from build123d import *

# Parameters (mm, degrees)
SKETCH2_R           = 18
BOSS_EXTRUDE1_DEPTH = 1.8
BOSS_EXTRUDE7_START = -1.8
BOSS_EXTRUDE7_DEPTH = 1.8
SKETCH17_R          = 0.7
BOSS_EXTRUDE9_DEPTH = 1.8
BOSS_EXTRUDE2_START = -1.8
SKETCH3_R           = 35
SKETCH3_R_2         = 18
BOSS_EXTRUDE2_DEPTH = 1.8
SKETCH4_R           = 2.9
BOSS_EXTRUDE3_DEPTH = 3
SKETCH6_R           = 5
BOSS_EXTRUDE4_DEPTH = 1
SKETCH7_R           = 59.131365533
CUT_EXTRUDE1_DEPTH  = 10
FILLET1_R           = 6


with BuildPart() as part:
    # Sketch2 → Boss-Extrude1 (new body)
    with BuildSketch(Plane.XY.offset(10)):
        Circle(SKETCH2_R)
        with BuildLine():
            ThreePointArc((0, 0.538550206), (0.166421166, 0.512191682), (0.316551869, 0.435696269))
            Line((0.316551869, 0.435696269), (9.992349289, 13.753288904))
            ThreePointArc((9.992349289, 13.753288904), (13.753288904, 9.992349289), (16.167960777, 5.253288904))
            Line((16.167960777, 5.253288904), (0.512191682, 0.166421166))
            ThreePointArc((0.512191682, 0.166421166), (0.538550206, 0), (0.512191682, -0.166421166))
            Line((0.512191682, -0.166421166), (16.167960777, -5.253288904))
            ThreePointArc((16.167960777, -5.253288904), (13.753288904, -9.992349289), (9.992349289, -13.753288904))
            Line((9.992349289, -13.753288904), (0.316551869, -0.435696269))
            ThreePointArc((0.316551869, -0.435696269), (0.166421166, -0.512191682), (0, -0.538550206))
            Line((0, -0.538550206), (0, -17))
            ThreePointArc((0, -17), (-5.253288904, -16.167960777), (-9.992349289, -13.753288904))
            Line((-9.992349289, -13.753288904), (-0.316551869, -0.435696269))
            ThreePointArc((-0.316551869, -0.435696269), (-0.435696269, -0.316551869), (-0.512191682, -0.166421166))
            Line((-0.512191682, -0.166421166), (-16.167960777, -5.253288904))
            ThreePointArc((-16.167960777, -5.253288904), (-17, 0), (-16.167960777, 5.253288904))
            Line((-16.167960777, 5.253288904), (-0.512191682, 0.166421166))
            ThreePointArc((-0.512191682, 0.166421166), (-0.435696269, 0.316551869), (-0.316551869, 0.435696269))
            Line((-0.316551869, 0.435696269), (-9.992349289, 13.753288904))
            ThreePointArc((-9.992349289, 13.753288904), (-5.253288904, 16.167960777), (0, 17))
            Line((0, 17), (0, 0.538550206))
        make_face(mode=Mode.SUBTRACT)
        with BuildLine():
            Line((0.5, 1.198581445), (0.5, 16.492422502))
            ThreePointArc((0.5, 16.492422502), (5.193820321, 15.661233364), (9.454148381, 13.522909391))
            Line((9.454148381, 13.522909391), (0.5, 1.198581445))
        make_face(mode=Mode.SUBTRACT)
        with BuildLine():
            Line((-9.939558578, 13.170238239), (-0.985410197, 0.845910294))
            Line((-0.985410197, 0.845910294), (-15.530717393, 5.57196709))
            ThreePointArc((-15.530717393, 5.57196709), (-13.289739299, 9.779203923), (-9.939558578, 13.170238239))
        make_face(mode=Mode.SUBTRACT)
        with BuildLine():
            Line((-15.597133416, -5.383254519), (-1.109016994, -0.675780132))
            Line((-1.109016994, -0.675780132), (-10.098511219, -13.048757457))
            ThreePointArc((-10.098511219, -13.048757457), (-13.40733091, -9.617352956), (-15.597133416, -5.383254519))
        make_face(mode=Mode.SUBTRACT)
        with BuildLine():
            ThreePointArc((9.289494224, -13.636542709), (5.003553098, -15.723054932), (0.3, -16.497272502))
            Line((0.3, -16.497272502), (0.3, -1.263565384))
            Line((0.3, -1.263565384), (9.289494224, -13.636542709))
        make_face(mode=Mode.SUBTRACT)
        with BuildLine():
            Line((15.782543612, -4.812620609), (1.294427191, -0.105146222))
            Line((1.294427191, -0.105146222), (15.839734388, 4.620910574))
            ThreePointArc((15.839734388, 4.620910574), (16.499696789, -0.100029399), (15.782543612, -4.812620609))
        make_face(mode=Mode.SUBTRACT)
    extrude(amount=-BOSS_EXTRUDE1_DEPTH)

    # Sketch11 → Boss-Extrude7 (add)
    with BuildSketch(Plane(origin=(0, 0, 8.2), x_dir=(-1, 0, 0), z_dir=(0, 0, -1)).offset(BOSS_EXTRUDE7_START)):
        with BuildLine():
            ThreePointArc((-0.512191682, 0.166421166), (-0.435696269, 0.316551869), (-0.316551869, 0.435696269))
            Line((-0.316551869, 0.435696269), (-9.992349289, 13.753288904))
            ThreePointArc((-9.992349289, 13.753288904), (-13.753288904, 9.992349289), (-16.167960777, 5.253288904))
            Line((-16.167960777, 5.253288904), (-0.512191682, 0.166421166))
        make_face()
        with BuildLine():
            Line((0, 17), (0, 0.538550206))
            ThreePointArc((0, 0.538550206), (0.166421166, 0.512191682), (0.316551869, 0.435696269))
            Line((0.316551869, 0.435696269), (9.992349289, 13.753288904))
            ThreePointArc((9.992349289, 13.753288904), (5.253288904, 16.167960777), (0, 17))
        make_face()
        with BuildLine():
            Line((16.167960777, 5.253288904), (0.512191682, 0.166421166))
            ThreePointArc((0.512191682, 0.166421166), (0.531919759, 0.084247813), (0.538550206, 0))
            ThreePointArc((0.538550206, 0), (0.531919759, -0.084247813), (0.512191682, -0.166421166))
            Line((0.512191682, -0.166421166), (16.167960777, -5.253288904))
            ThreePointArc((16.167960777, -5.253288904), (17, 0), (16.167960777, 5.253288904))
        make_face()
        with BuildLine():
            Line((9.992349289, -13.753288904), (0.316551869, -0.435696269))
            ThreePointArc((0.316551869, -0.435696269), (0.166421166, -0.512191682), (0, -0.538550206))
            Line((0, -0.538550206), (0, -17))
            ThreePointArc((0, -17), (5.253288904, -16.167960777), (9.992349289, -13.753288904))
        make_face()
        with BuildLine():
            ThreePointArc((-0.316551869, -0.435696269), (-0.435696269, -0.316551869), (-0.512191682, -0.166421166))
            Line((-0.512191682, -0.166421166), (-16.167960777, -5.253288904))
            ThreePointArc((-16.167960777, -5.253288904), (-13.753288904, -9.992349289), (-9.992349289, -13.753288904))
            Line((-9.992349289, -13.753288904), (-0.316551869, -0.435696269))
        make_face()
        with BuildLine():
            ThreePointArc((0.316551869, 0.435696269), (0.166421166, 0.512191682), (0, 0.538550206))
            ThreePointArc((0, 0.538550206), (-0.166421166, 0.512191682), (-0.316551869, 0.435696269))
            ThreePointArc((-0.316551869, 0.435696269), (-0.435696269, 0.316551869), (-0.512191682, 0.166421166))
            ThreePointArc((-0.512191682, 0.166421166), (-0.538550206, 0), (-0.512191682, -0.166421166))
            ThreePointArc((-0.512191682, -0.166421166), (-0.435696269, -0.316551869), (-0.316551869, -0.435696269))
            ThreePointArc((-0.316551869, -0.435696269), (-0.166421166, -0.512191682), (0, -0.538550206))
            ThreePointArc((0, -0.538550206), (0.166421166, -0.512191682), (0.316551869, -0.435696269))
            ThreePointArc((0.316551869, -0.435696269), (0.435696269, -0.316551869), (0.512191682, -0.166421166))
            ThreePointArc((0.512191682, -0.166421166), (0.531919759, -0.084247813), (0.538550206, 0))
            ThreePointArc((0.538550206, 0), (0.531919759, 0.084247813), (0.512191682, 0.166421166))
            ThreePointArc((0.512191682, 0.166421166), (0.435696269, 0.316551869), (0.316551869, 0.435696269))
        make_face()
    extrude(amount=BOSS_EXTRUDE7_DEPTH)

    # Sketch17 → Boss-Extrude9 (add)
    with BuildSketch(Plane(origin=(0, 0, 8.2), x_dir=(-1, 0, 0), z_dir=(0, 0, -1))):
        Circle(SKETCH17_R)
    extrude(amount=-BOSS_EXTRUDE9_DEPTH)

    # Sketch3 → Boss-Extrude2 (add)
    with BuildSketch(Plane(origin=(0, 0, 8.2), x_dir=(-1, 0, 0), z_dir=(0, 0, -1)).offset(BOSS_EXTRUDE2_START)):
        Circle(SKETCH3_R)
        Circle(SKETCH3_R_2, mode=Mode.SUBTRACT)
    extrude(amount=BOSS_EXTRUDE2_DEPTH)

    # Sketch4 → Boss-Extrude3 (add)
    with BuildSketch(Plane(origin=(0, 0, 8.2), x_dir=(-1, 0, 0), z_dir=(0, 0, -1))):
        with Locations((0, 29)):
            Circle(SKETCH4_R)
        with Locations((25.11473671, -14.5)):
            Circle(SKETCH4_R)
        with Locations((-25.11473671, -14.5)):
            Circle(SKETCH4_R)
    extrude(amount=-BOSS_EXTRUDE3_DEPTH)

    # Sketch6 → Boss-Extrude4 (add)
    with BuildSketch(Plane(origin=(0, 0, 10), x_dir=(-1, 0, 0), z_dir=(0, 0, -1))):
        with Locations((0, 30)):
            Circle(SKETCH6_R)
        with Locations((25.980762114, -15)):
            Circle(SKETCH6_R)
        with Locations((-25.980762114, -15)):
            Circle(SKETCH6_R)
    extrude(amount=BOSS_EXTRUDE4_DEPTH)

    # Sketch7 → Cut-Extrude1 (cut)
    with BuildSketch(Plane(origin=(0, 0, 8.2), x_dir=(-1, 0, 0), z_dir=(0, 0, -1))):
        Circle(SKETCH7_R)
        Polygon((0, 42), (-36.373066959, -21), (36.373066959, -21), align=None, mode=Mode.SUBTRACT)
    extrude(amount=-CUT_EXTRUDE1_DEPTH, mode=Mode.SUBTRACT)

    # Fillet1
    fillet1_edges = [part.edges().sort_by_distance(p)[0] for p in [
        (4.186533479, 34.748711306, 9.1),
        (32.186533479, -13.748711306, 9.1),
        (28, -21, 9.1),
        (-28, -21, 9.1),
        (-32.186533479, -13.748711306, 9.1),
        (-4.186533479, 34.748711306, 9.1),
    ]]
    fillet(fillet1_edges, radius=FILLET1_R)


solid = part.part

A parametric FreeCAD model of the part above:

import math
import FreeCAD as App
import Part
import Sketcher
Q = App.Units.Quantity


def edges_at(feature, points):
    """Names of the edges that pass closest to the given points."""
    edges = feature.Shape.Edges
    near = lambda p: min(range(len(edges)), key=lambda i: edges[i].distToShape(Part.Vertex(*p))[0])
    return sorted({f"Edge{near(p) + 1}" for p in points})


def add_polygon(sketch, points):
    """Adds a closed chain of lines whose ends are joined by coincident constraints."""
    first, n = sketch.GeometryCount, len(points)
    for a, b in zip(points, points[1:] + points[:1]):
        sketch.addGeometry(Part.LineSegment(App.Vector(*a, 0), App.Vector(*b, 0)), False)
    for i in range(n):
        sketch.addConstraint(Sketcher.Constraint("Coincident", first + i, 2, first + (i + 1) % n, 1))

doc = App.newDocument("Part")
body = doc.addObject("PartDesign::Body", "Body")

# Sketch on XY plane
sketch1 = body.newObject("Sketcher::SketchObject", "Sketch")
sketch1.AttachmentSupport = (doc.getObject("XY_Plane"), [""])
sketch1.MapMode = "FlatFace"
sketch1.AttachmentOffset = App.Placement(App.Vector(0, 0, 10), App.Rotation())
sketch1.addGeometry([
    Part.Circle(App.Vector(0, 0, 0), App.Vector(0, 0, 1), 18),  # 0
    Part.ArcOfCircle(Part.Circle(App.Vector(0, 0, 0), App.Vector(0, 0, 1), 16.5), math.radians(-160.958201), math.radians(-127.736502)),  # 1
    Part.LineSegment(App.Vector(-15.597133, -5.383255, 0), App.Vector(-1.109017, -0.67578, 0)),  # 2
    Part.LineSegment(App.Vector(-1.109017, -0.67578, 0), App.Vector(-10.098511, -13.048757, 0)),  # 3
    Part.LineSegment(App.Vector(0.3, -1.263565, 0), App.Vector(9.289494, -13.636543, 0)),  # 4
    Part.ArcOfCircle(Part.Circle(App.Vector(0, 0, 0), App.Vector(0, 0, 1), 16.5), math.radians(-88.958201), math.radians(-55.736502)),  # 5
    Part.LineSegment(App.Vector(0.3, -16.497273, 0), App.Vector(0.3, -1.263565, 0)),  # 6
    Part.ArcOfCircle(Part.Circle(App.Vector(0, 0, 0), App.Vector(0, 0, 1), 16.5), math.radians(-16.958201), math.radians(16.263498)),  # 7
    Part.LineSegment(App.Vector(15.782544, -4.812621, 0), App.Vector(1.294427, -0.105146, 0)),  # 8
    Part.LineSegment(App.Vector(1.294427, -0.105146, 0), App.Vector(15.839734, 4.620911, 0)),  # 9
    Part.LineSegment(App.Vector(0, 17, 0), App.Vector(0, 0.53855, 0)),  # 10
    Part.ArcOfCircle(Part.Circle(App.Vector(0, 0, 0), App.Vector(0, 0, 1), 0.53855), math.radians(54.000001), math.radians(89.999999)),  # 11
    Part.LineSegment(App.Vector(0.316552, 0.435696, 0), App.Vector(9.992349, 13.753289, 0)),  # 12
    Part.ArcOfCircle(Part.Circle(App.Vector(0, 0, 0), App.Vector(0, 0, 1), 17), math.radians(18), math.radians(54)),  # 13
    Part.LineSegment(App.Vector(16.167961, 5.253289, 0), App.Vector(0.512192, 0.166421, 0)),  # 14
    Part.ArcOfCircle(Part.Circle(App.Vector(0, 0, 0), App.Vector(0, 0, 1), 0.53855), math.radians(-18.000001), math.radians(18.000001)),  # 15
    Part.LineSegment(App.Vector(0.512192, -0.166421, 0), App.Vector(16.167961, -5.253289, 0)),  # 16
    Part.ArcOfCircle(Part.Circle(App.Vector(0, 0, 0), App.Vector(0, 0, 1), 17), math.radians(-54), math.radians(-18)),  # 17
    Part.LineSegment(App.Vector(9.992349, -13.753289, 0), App.Vector(0.316552, -0.435696, 0)),  # 18
    Part.ArcOfCircle(Part.Circle(App.Vector(0, 0, 0), App.Vector(0, 0, 1), 0.53855), math.radians(-89.999999), math.radians(-54.000001)),  # 19
    Part.LineSegment(App.Vector(0, -0.53855, 0), App.Vector(0, -17, 0)),  # 20
    Part.ArcOfCircle(Part.Circle(App.Vector(0, 0, 0), App.Vector(0, 0, 1), 17), math.radians(-126), math.radians(-90)),  # 21
    Part.LineSegment(App.Vector(-9.992349, -13.753289, 0), App.Vector(-0.316552, -0.435696, 0)),  # 22
    Part.ArcOfCircle(Part.Circle(App.Vector(0, 0, 0), App.Vector(0, 0, 1), 0.53855), math.radians(-162), math.radians(-126)),  # 23
    Part.LineSegment(App.Vector(-0.512192, -0.166421, 0), App.Vector(-16.167961, -5.253289, 0)),  # 24
    Part.ArcOfCircle(Part.Circle(App.Vector(0, 0, 0), App.Vector(0, 0, 1), 17), math.radians(162), math.radians(198)),  # 25
    Part.LineSegment(App.Vector(-16.167961, 5.253289, 0), App.Vector(-0.512192, 0.166421, 0)),  # 26
    Part.ArcOfCircle(Part.Circle(App.Vector(0, 0, 0), App.Vector(0, 0, 1), 0.53855), math.radians(126), math.radians(162)),  # 27
    Part.LineSegment(App.Vector(-0.316552, 0.435696, 0), App.Vector(-9.992349, 13.753289, 0)),  # 28
    Part.ArcOfCircle(Part.Circle(App.Vector(0, 0, 0), App.Vector(0, 0, 1), 17), math.radians(90), math.radians(126)),  # 29
    Part.ArcOfCircle(Part.Circle(App.Vector(0, 0, 0), App.Vector(0, 0, 1), 16.5), math.radians(127.041799), math.radians(160.263498)),  # 30
    Part.LineSegment(App.Vector(-9.939559, 13.170238, 0), App.Vector(-0.98541, 0.84591, 0)),  # 31
    Part.LineSegment(App.Vector(-0.98541, 0.84591, 0), App.Vector(-15.530717, 5.571967, 0)),  # 32
    Part.LineSegment(App.Vector(9.454148, 13.522909, 0), App.Vector(0.5, 1.198581, 0)),  # 33
    Part.LineSegment(App.Vector(0.5, 1.198581, 0), App.Vector(0.5, 16.492423, 0)),  # 34
    Part.ArcOfCircle(Part.Circle(App.Vector(0, 0, 0), App.Vector(0, 0, 1), 16.5), math.radians(55.041799), math.radians(88.263498)),  # 35
], False)
sketch1.addConstraint([
    Sketcher.Constraint("Coincident", 1, 1, 2, 1),
    Sketcher.Constraint("Coincident", 2, 2, 3, 1),
    Sketcher.Constraint("Coincident", 3, 2, 1, 2),
    Sketcher.Constraint("Coincident", 4, 2, 5, 2),
    Sketcher.Constraint("Coincident", 5, 1, 6, 1),
    Sketcher.Constraint("Coincident", 6, 2, 4, 1),
    Sketcher.Constraint("Coincident", 7, 1, 8, 1),
    Sketcher.Constraint("Coincident", 8, 2, 9, 1),
    Sketcher.Constraint("Coincident", 9, 2, 7, 2),
    Sketcher.Constraint("Coincident", 10, 2, 11, 2),
    Sketcher.Constraint("Coincident", 11, 1, 12, 1),
    Sketcher.Constraint("Coincident", 12, 2, 13, 2),
    Sketcher.Constraint("Coincident", 13, 1, 14, 1),
    Sketcher.Constraint("Coincident", 14, 2, 15, 2),
    Sketcher.Constraint("Coincident", 15, 1, 16, 1),
    Sketcher.Constraint("Coincident", 16, 2, 17, 2),
    Sketcher.Constraint("Coincident", 17, 1, 18, 1),
    Sketcher.Constraint("Coincident", 18, 2, 19, 2),
    Sketcher.Constraint("Coincident", 19, 1, 20, 1),
    Sketcher.Constraint("Coincident", 20, 2, 21, 2),
    Sketcher.Constraint("Coincident", 21, 1, 22, 1),
    Sketcher.Constraint("Coincident", 22, 2, 23, 2),
    Sketcher.Constraint("Coincident", 23, 1, 24, 1),
    Sketcher.Constraint("Coincident", 24, 2, 25, 2),
    Sketcher.Constraint("Coincident", 25, 1, 26, 1),
    Sketcher.Constraint("Coincident", 26, 2, 27, 2),
    Sketcher.Constraint("Coincident", 27, 1, 28, 1),
    Sketcher.Constraint("Coincident", 28, 2, 29, 2),
    Sketcher.Constraint("Coincident", 29, 1, 10, 1),
    Sketcher.Constraint("Coincident", 30, 1, 31, 1),
    Sketcher.Constraint("Coincident", 31, 2, 32, 1),
    Sketcher.Constraint("Coincident", 32, 2, 30, 2),
    Sketcher.Constraint("Coincident", 33, 2, 34, 1),
    Sketcher.Constraint("Coincident", 34, 2, 35, 2),
    Sketcher.Constraint("Coincident", 35, 1, 33, 1),
    Sketcher.Constraint("Vertical", 6),
    Sketcher.Constraint("Vertical", 10),
    Sketcher.Constraint("Vertical", 20),
    Sketcher.Constraint("Vertical", 34),
    Sketcher.Constraint("Coincident", 0, 3, -1, 1),
    Sketcher.Constraint("Coincident", 1, 3, -1, 1),
    Sketcher.Constraint("Coincident", 5, 3, -1, 1),
    Sketcher.Constraint("Coincident", 7, 3, -1, 1),
    Sketcher.Constraint("Coincident", 11, 3, -1, 1),
    Sketcher.Constraint("Coincident", 13, 3, -1, 1),
    Sketcher.Constraint("Coincident", 15, 3, -1, 1),
    Sketcher.Constraint("Coincident", 17, 3, -1, 1),
    Sketcher.Constraint("Coincident", 19, 3, -1, 1),
    Sketcher.Constraint("Coincident", 21, 3, -1, 1),
    Sketcher.Constraint("Coincident", 23, 3, -1, 1),
    Sketcher.Constraint("Coincident", 25, 3, -1, 1),
    Sketcher.Constraint("Coincident", 27, 3, -1, 1),
    Sketcher.Constraint("Coincident", 29, 3, -1, 1),
    Sketcher.Constraint("Coincident", 30, 3, -1, 1),
    Sketcher.Constraint("Coincident", 35, 3, -1, 1),
    Sketcher.Constraint("Equal", 1, 5),
    Sketcher.Constraint("Equal", 5, 7),
    Sketcher.Constraint("Equal", 11, 15),
    Sketcher.Constraint("Equal", 13, 17),
    Sketcher.Constraint("Equal", 15, 19),
    Sketcher.Constraint("Equal", 17, 21),
    Sketcher.Constraint("Equal", 19, 23),
    Sketcher.Constraint("Equal", 21, 25),
    Sketcher.Constraint("Equal", 23, 27),
    Sketcher.Constraint("Equal", 25, 29),
    Sketcher.Constraint("Equal", 7, 30),
    Sketcher.Constraint("Equal", 30, 35),
    Sketcher.Constraint("PointOnObject", 10, 2, -2),
    Sketcher.Constraint("PointOnObject", 19, 1, -2),
    Sketcher.Constraint("Parallel", 2, 9),
    Sketcher.Constraint("Parallel", 3, 12),
    Sketcher.Constraint("Parallel", 9, 14),
    Sketcher.Constraint("Parallel", 8, 16),
    Sketcher.Constraint("Parallel", 4, 18),
    Sketcher.Constraint("Parallel", 12, 22),
    Sketcher.Constraint("Parallel", 14, 24),
    Sketcher.Constraint("Parallel", 16, 26),
    Sketcher.Constraint("Parallel", 18, 28),
    Sketcher.Constraint("Parallel", 28, 31),
    Sketcher.Constraint("Parallel", 26, 32),
    Sketcher.Constraint("Parallel", 22, 33),
    Sketcher.Constraint("Horizontal", 17, 1, 21, 1),
    Sketcher.Constraint("Horizontal", 18, 2, 22, 2),
    Sketcher.Constraint("Horizontal", 15, 1, 23, 1),
    Sketcher.Constraint("Horizontal", 16, 2, 24, 2),
    Sketcher.Constraint("Horizontal", 13, 1, 25, 1),
    Sketcher.Constraint("Horizontal", 11, 1, 27, 1),
    Sketcher.Constraint("Vertical", 14, 2, 15, 1),
    Sketcher.Constraint("Vertical", 12, 2, 17, 1),
    Sketcher.Constraint("Equal", 3, 4),
    Sketcher.Constraint("Equal", 2, 8),
    Sketcher.Constraint("Equal", 4, 9),
    Sketcher.Constraint("Equal", 8, 31),
    Sketcher.Constraint("Equal", 9, 32),
    Sketcher.Constraint("Equal", 31, 33),
    Sketcher.Constraint("Diameter", 0, 36.0),
    Sketcher.Constraint("Radius", 13, 17.0),
    Sketcher.Constraint("Radius", 1, 16.5),
    Sketcher.Constraint("Angle", 2, Q("18 deg")),
    Sketcher.Constraint("Angle", 3, Q("-126 deg")),
    Sketcher.Constraint("DistanceX", -1, 1, 5, 1, 0.3),
    Sketcher.Constraint("DistanceX", -1, 1, 33, 2, 0.5),
    Sketcher.Constraint("DistanceY", 13, 1, 12, 2, 8.5),
    Sketcher.Constraint("Radius", 11, 0.53855),
    Sketcher.Constraint("DistanceY", 9, 2, 35, 1, 8.901999),
    Sketcher.Constraint("DistanceY", 34, 1, 34, 2, 15.293841),
    Sketcher.Constraint("DistanceY", 16, 2, 9, 2, 9.874199),
])
pad1 = body.newObject("PartDesign::Pad", "Pad")
pad1.Profile = sketch1
pad1.Length = 1.8
pad1.Reversed = True

# Sketch on XY plane
sketch2 = body.newObject("Sketcher::SketchObject", "Sketch001")
sketch2.AttachmentSupport = (doc.getObject("XY_Plane"), [""])
sketch2.MapMode = "FlatFace"
sketch2.AttachmentOffset = App.Placement(App.Vector(0, 0, 10), App.Rotation())
sketch2.addGeometry([
    Part.LineSegment(App.Vector(0.316552, 0.435696, 0), App.Vector(9.992349, 13.753289, 0)),  # 0
    Part.ArcOfCircle(Part.Circle(App.Vector(0, 0, 0), App.Vector(0, 0, 1), 17), math.radians(18), math.radians(54)),  # 1
    Part.LineSegment(App.Vector(16.167961, 5.253289, 0), App.Vector(0.512192, 0.166421, 0)),  # 2
    Part.ArcOfCircle(Part.Circle(App.Vector(0, 0, 0), App.Vector(0, 0, 1), 0.53855), math.radians(-18.000001), math.radians(18.000001)),  # 3
    Part.LineSegment(App.Vector(0.512192, -0.166421, 0), App.Vector(16.167961, -5.253289, 0)),  # 4
    Part.ArcOfCircle(Part.Circle(App.Vector(0, 0, 0), App.Vector(0, 0, 1), 17), math.radians(-54), math.radians(-18)),  # 5
    Part.LineSegment(App.Vector(9.992349, -13.753289, 0), App.Vector(0.316552, -0.435696, 0)),  # 6
    Part.ArcOfCircle(Part.Circle(App.Vector(0, 0, 0), App.Vector(0, 0, 1), 0.53855), math.radians(-89.999999), math.radians(-54.000001)),  # 7
    Part.LineSegment(App.Vector(0, -0.53855, 0), App.Vector(0, -17, 0)),  # 8
    Part.ArcOfCircle(Part.Circle(App.Vector(0, 0, 0), App.Vector(0, 0, 1), 17), math.radians(-126), math.radians(-90)),  # 9
    Part.LineSegment(App.Vector(-9.992349, -13.753289, 0), App.Vector(-0.316552, -0.435696, 0)),  # 10
    Part.ArcOfCircle(Part.Circle(App.Vector(0, 0, 0), App.Vector(0, 0, 1), 0.53855), math.radians(-162), math.radians(-126)),  # 11
    Part.LineSegment(App.Vector(-0.512192, -0.166421, 0), App.Vector(-16.167961, -5.253289, 0)),  # 12
    Part.ArcOfCircle(Part.Circle(App.Vector(0, 0, 0), App.Vector(0, 0, 1), 17), math.radians(162), math.radians(198)),  # 13
    Part.LineSegment(App.Vector(-16.167961, 5.253289, 0), App.Vector(-0.512192, 0.166421, 0)),  # 14
    Part.ArcOfCircle(Part.Circle(App.Vector(0, 0, 0), App.Vector(0, 0, 1), 0.53855), math.radians(126), math.radians(162)),  # 15
    Part.LineSegment(App.Vector(-0.316552, 0.435696, 0), App.Vector(-9.992349, 13.753289, 0)),  # 16
    Part.ArcOfCircle(Part.Circle(App.Vector(0, 0, 0), App.Vector(0, 0, 1), 17), math.radians(90), math.radians(126)),  # 17
    Part.LineSegment(App.Vector(0, 17, 0), App.Vector(0, 0.53855, 0)),  # 18
    Part.ArcOfCircle(Part.Circle(App.Vector(0, 0, 0), App.Vector(0, 0, 1), 0.53855), math.radians(54.000001), math.radians(89.999999)),  # 19
], False)
sketch2.addConstraint([
    Sketcher.Constraint("Coincident", 0, 2, 1, 2),
    Sketcher.Constraint("Coincident", 1, 1, 2, 1),
    Sketcher.Constraint("Coincident", 2, 2, 3, 2),
    Sketcher.Constraint("Coincident", 3, 1, 4, 1),
    Sketcher.Constraint("Coincident", 4, 2, 5, 2),
    Sketcher.Constraint("Coincident", 5, 1, 6, 1),
    Sketcher.Constraint("Coincident", 6, 2, 7, 2),
    Sketcher.Constraint("Coincident", 7, 1, 8, 1),
    Sketcher.Constraint("Coincident", 8, 2, 9, 2),
    Sketcher.Constraint("Coincident", 9, 1, 10, 1),
    Sketcher.Constraint("Coincident", 10, 2, 11, 2),
    Sketcher.Constraint("Coincident", 11, 1, 12, 1),
    Sketcher.Constraint("Coincident", 12, 2, 13, 2),
    Sketcher.Constraint("Coincident", 13, 1, 14, 1),
    Sketcher.Constraint("Coincident", 14, 2, 15, 2),
    Sketcher.Constraint("Coincident", 15, 1, 16, 1),
    Sketcher.Constraint("Coincident", 16, 2, 17, 2),
    Sketcher.Constraint("Coincident", 17, 1, 18, 1),
    Sketcher.Constraint("Coincident", 18, 2, 19, 2),
    Sketcher.Constraint("Coincident", 19, 1, 0, 1),
    Sketcher.Constraint("Vertical", 8),
    Sketcher.Constraint("Vertical", 18),
    Sketcher.Constraint("Coincident", 1, 3, -1, 1),
    Sketcher.Constraint("Coincident", 3, 3, -1, 1),
    Sketcher.Constraint("Coincident", 5, 3, -1, 1),
    Sketcher.Constraint("Coincident", 7, 3, -1, 1),
    Sketcher.Constraint("Coincident", 9, 3, -1, 1),
    Sketcher.Constraint("Coincident", 11, 3, -1, 1),
    Sketcher.Constraint("Coincident", 13, 3, -1, 1),
    Sketcher.Constraint("Coincident", 15, 3, -1, 1),
    Sketcher.Constraint("Coincident", 17, 3, -1, 1),
    Sketcher.Constraint("Coincident", 19, 3, -1, 1),
    Sketcher.Constraint("Equal", 1, 5),
    Sketcher.Constraint("Equal", 3, 7),
    Sketcher.Constraint("Equal", 5, 9),
    Sketcher.Constraint("Equal", 7, 11),
    Sketcher.Constraint("Equal", 9, 13),
    Sketcher.Constraint("Equal", 11, 15),
    Sketcher.Constraint("Equal", 13, 17),
    Sketcher.Constraint("Equal", 15, 19),
    Sketcher.Constraint("PointOnObject", 7, 1, -2),
    Sketcher.Constraint("PointOnObject", 17, 1, -2),
    Sketcher.Constraint("Parallel", 0, 10),
    Sketcher.Constraint("Parallel", 2, 12),
    Sketcher.Constraint("Parallel", 4, 14),
    Sketcher.Constraint("Parallel", 6, 16),
    Sketcher.Constraint("Horizontal", 5, 1, 9, 1),
    Sketcher.Constraint("Horizontal", 6, 2, 10, 2),
    Sketcher.Constraint("Horizontal", 3, 1, 11, 1),
    Sketcher.Constraint("Horizontal", 4, 2, 12, 2),
    Sketcher.Constraint("Horizontal", 1, 1, 13, 1),
    Sketcher.Constraint("Horizontal", 0, 2, 16, 2),
    Sketcher.Constraint("Vertical", 2, 2, 3, 1),
    Sketcher.Constraint("Vertical", 0, 2, 5, 1),
    Sketcher.Constraint("Radius", 1, 17.0),
    Sketcher.Constraint("Angle", 0, Q("54 deg")),
    Sketcher.Constraint("Angle", 2, Q("-162 deg")),
    Sketcher.Constraint("DistanceY", 1, 1, 0, 2, 8.5),
    Sketcher.Constraint("Radius", 3, 0.53855),
    Sketcher.Constraint("DistanceX", 9, 1, 6, 2, 10.308901),
])
pad2 = body.newObject("PartDesign::Pad", "Pad001")
pad2.Profile = sketch2
pad2.Length = 1.8
pad2.Reversed = True

# Sketch on XY plane
sketch3 = body.newObject("Sketcher::SketchObject", "Sketch002")
sketch3.AttachmentSupport = (doc.getObject("XY_Plane"), [""])
sketch3.MapMode = "FlatFace"
sketch3.AttachmentOffset = App.Placement(App.Vector(0, 0, 8.2), App.Rotation())
sketch3.addGeometry(Part.Circle(App.Vector(0, 0, 0), App.Vector(0, 0, 1), 0.7), False)
sketch3.addConstraint([
    Sketcher.Constraint("Coincident", 0, 3, -1, 1),
    Sketcher.Constraint("Diameter", 0, 1.4),
])
pad3 = body.newObject("PartDesign::Pad", "Pad002")
pad3.Profile = sketch3
pad3.Length = 1.8

# Sketch on XY plane
sketch4 = body.newObject("Sketcher::SketchObject", "Sketch003")
sketch4.AttachmentSupport = (doc.getObject("XY_Plane"), [""])
sketch4.MapMode = "FlatFace"
sketch4.AttachmentOffset = App.Placement(App.Vector(0, 0, 10), App.Rotation())
sketch4.addGeometry([
    Part.Circle(App.Vector(0, 0, 0), App.Vector(0, 0, 1), 35),
    Part.Circle(App.Vector(0, 0, 0), App.Vector(0, 0, 1), 18),
], False)
sketch4.addConstraint([
    Sketcher.Constraint("Coincident", 0, 3, -1, 1),
    Sketcher.Constraint("Coincident", 1, 3, -1, 1),
    Sketcher.Constraint("Diameter", 0, 70.0),
    Sketcher.Constraint("Diameter", 1, 36.0),
])
pad4 = body.newObject("PartDesign::Pad", "Pad003")
pad4.Profile = sketch4
pad4.Length = 1.8
pad4.Reversed = True

# Sketch on XY plane
sketch5 = body.newObject("Sketcher::SketchObject", "Sketch004")
sketch5.AttachmentSupport = (doc.getObject("XY_Plane"), [""])
sketch5.MapMode = "FlatFace"
sketch5.AttachmentOffset = App.Placement(App.Vector(0, 0, 8.2), App.Rotation())
sketch5.addGeometry([
    Part.Circle(App.Vector(0, 29, 0), App.Vector(0, 0, 1), 2.9),
    Part.Circle(App.Vector(-25.114737, -14.5, 0), App.Vector(0, 0, 1), 2.9),
    Part.Circle(App.Vector(25.114737, -14.5, 0), App.Vector(0, 0, 1), 2.9),
], False)
sketch5.addConstraint([
    Sketcher.Constraint("Equal", 0, 1),
    Sketcher.Constraint("Equal", 1, 2),
    Sketcher.Constraint("Symmetric", 1, 3, 2, 3, -2),
    Sketcher.Constraint("PointOnObject", 0, 3, -2),
    Sketcher.Constraint("Diameter", 0, 5.8),
    Sketcher.Constraint("DistanceY", -1, 1, 0, 3, 29.0),
    Sketcher.Constraint("DistanceY", 1, 3, -1, 1, 14.5),
    Sketcher.Constraint("DistanceX", 1, 3, -1, 1, 25.114737),
])
pad5 = body.newObject("PartDesign::Pad", "Pad004")
pad5.Profile = sketch5
pad5.Length = 3

# Sketch on XY plane
sketch6 = body.newObject("Sketcher::SketchObject", "Sketch005")
sketch6.AttachmentSupport = (doc.getObject("XY_Plane"), [""])
sketch6.MapMode = "FlatFace"
sketch6.AttachmentOffset = App.Placement(App.Vector(0, 0, 10), App.Rotation())
sketch6.addGeometry([
    Part.Circle(App.Vector(0, 30, 0), App.Vector(0, 0, 1), 5),
    Part.Circle(App.Vector(-25.980762, -15, 0), App.Vector(0, 0, 1), 5),
    Part.Circle(App.Vector(25.980762, -15, 0), App.Vector(0, 0, 1), 5),
], False)
sketch6.addConstraint([
    Sketcher.Constraint("Equal", 0, 1),
    Sketcher.Constraint("Equal", 1, 2),
    Sketcher.Constraint("Symmetric", 1, 3, 2, 3, -2),
    Sketcher.Constraint("PointOnObject", 0, 3, -2),
    Sketcher.Constraint("Diameter", 0, 10.0),
    Sketcher.Constraint("DistanceY", -1, 1, 0, 3, 30.0),
    Sketcher.Constraint("DistanceY", 1, 3, -1, 1, 15.0),
    Sketcher.Constraint("DistanceX", 1, 3, -1, 1, 25.980762),
])
pad6 = body.newObject("PartDesign::Pad", "Pad005")
pad6.Profile = sketch6
pad6.Length = 1
pad6.Reversed = True

# Sketch on XY plane
sketch7 = body.newObject("Sketcher::SketchObject", "Sketch006")
sketch7.AttachmentSupport = (doc.getObject("XY_Plane"), [""])
sketch7.MapMode = "FlatFace"
sketch7.AttachmentOffset = App.Placement(App.Vector(0, 0, 8.2), App.Rotation())
sketch7.addGeometry(Part.Circle(App.Vector(0, 0, 0), App.Vector(0, 0, 1), 59.131366), False)  # 0
add_polygon(sketch7, [(36.373067, -21), (0, 42), (-36.373067, -21)])  # lines 1-3
sketch7.addConstraint([
    Sketcher.Constraint("Horizontal", 3),
    Sketcher.Constraint("Coincident", 0, 3, -1, 1),
    Sketcher.Constraint("PointOnObject", 1, 2, -2),
    Sketcher.Constraint("Equal", 1, 2),
    Sketcher.Constraint("Angle", 1, Q("120 deg")),
    Sketcher.Constraint("DistanceY", -1, 1, 1, 2, 42.0),
    Sketcher.Constraint("DistanceY", 2, 2, -1, 1, 21.0),
    Sketcher.Constraint("Diameter", 0, 118.262731),
])
pocket1 = body.newObject("PartDesign::Pocket", "Pocket")
pocket1.Profile = sketch7
pocket1.Length = 10
pocket1.Reversed = True
doc.recompute()

fillet = body.newObject("PartDesign::Fillet", "Fillet")
fillet.Base = (pocket1, edges_at(pocket1, [
    (4.187, 34.749, 9.1),
    (32.187, -13.749, 9.1),
    (28, -21, 9.1),
    (-28, -21, 9.1),
    (-32.187, -13.749, 9.1),
    (-4.187, 34.749, 9.1),
]))
fillet.Radius = 6

doc.recompute()
